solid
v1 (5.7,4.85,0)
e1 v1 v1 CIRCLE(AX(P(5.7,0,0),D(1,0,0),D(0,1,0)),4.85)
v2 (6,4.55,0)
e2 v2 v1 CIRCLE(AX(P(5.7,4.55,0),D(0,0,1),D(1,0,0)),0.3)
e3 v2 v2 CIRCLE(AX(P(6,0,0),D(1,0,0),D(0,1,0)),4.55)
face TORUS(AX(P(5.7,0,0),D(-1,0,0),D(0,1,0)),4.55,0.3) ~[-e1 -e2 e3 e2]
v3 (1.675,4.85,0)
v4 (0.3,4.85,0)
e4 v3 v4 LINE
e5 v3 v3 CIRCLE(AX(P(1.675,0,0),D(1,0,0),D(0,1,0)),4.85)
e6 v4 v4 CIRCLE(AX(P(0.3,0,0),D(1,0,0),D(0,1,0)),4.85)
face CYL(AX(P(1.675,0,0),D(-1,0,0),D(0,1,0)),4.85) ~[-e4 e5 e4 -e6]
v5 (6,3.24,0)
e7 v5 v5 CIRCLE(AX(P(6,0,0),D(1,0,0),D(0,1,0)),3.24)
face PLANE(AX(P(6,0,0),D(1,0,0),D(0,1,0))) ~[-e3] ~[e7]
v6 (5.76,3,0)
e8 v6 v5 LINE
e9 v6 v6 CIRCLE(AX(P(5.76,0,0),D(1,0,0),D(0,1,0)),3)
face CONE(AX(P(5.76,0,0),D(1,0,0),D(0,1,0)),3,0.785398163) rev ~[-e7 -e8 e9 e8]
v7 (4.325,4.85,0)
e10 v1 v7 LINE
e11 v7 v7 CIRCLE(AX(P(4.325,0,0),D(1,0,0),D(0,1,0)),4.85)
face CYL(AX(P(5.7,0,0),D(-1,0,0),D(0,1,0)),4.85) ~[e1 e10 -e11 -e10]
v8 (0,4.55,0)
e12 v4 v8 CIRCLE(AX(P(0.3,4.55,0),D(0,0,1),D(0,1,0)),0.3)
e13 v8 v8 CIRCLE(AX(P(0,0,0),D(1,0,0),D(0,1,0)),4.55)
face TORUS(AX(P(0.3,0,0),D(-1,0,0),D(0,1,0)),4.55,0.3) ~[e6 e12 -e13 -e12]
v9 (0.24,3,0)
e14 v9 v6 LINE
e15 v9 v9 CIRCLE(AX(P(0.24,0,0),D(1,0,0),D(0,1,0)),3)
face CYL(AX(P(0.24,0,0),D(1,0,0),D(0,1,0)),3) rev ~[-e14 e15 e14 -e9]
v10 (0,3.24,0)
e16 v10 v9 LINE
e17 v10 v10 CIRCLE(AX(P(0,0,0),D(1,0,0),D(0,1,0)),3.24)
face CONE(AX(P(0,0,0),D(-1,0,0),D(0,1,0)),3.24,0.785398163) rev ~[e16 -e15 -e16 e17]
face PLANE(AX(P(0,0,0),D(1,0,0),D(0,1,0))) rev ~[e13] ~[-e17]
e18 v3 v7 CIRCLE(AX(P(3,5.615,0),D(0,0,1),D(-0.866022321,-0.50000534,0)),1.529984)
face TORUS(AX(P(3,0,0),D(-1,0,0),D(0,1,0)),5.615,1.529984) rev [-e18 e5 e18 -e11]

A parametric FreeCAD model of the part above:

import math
import FreeCAD as App
import Part
import Sketcher
from FreeCAD import Vector

doc = App.newDocument("Part")
body = doc.addObject("PartDesign::Body", "Body")

# Sketch on XY plane
sketch1 = body.newObject("Sketcher::SketchObject", "Sketch")
sketch1.AttachmentSupport = (doc.getObject("XY_Plane"), [""])
sketch1.MapMode = "FlatFace"
sketch1.addGeometry([
    Part.LineSegment(Vector(0, 4.55, 0), Vector(0, 3.24, 0)),  # 0
    Part.LineSegment(Vector(0, 3.24, 0), Vector(0.24, 3, 0)),  # 1
    Part.LineSegment(Vector(0.24, 3, 0), Vector(5.76, 3, 0)),  # 2
    Part.LineSegment(Vector(5.76, 3, 0), Vector(6, 3.24, 0)),  # 3
    Part.LineSegment(Vector(6, 3.24, 0), Vector(6, 4.55, 0)),  # 4
    Part.ArcOfCircle(Part.Circle(Vector(5.7, 4.55, 0), Vector(0, 0, 1), 0.3), math.radians(0), math.radians(90)),  # 5
    Part.LineSegment(Vector(5.7, 4.85, 0), Vector(4.33, 4.85, 0)),  # 6
    Part.ArcOfCircle(Part.Circle(Vector(3, 5.62, 0), Vector(0, 0, 1), 1.53), math.radians(-150), math.radians(-30)),  # 7
    Part.LineSegment(Vector(1.68, 4.85, 0), Vector(0.3, 4.85, 0)),  # 8
    Part.ArcOfCircle(Part.Circle(Vector(0.3, 4.55, 0), Vector(0, 0, 1), 0.3), math.radians(90), math.radians(180)),  # 9
], False)
sketch1.addConstraint([
    Sketcher.Constraint("Coincident", 0, 2, 1, 1),
    Sketcher.Constraint("Coincident", 1, 2, 2, 1),
    Sketcher.Constraint("Coincident", 2, 2, 3, 1),
    Sketcher.Constraint("Coincident", 3, 2, 4, 1),
    Sketcher.Constraint("Tangent", 4, 2, 5, 1),
    Sketcher.Constraint("Tangent", 5, 2, 6, 1),
    Sketcher.Constraint("Coincident", 6, 2, 7, 2),
    Sketcher.Constraint("Coincident", 7, 1, 8, 1),
    Sketcher.Constraint("Tangent", 8, 2, 9, 1),
    Sketcher.Constraint("Tangent", 9, 2, 0, 1),
    Sketcher.Constraint("Vertical", 0),
    Sketcher.Constraint("Horizontal", 2),
    Sketcher.Constraint("Vertical", 4),
    Sketcher.Constraint("Horizontal", 6),
    Sketcher.Constraint("Horizontal", 8),
    Sketcher.Constraint("Equal", 5, 9),
    Sketcher.Constraint("PointOnObject", 0, 2, -2),
    Sketcher.Constraint("Perpendicular", 1, 3),
    Sketcher.Constraint("Horizontal", 5, 3, 9, 3),
    Sketcher.Constraint("Horizontal", 0, 2, 3, 2),
    Sketcher.Constraint("Equal", 6, 8),
    Sketcher.Constraint("Equal", 1, 3),
    Sketcher.Constraint("Radius", 5, 0.3),
    Sketcher.Constraint("Radius", 7, 1.53),
    Sketcher.Constraint("DistanceX", -1, 1, 7, 3, 3.0),
    Sketcher.Constraint("DistanceY", -1, 1, 1, 2, 3.0),
    Sketcher.Constraint("DistanceX", 2, 1, 2, 2, 5.52),
    Sketcher.Constraint("DistanceY", 0, 2, 0, 1, 1.31),
    Sketcher.Constraint("DistanceX", 6, 2, 6, 1, 1.375),
])
revolution = body.newObject("PartDesign::Revolution", "Revolution")
revolution.Profile = sketch1
revolution.ReferenceAxis = (sketch1, ["H_Axis"])
revolution.Angle = 360

doc.recompute()
